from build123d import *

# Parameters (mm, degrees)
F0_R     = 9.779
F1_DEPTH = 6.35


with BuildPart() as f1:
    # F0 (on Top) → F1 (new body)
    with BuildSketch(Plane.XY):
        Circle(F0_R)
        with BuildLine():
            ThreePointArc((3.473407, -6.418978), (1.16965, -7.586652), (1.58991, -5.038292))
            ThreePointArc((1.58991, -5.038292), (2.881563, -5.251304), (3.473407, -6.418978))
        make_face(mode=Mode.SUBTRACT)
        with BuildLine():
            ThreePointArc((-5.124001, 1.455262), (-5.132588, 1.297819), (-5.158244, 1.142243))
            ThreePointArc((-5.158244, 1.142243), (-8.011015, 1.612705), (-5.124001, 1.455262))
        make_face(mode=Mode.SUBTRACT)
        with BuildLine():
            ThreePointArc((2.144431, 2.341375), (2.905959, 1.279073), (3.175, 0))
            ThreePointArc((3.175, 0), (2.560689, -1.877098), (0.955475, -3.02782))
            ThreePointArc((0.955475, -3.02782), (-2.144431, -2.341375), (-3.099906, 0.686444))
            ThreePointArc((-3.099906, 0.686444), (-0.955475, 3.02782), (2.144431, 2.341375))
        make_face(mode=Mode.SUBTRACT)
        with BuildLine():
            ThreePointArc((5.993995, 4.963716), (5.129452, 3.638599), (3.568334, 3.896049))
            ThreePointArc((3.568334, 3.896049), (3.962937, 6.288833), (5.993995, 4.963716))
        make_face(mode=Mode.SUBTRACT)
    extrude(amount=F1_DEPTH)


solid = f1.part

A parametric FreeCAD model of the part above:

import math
import FreeCAD as App
import Part
import Sketcher
Q = App.Units.Quantity

doc = App.newDocument("Part")
params = doc.addObject("Spreadsheet::Sheet", "Params")
for row, (alias, value) in enumerate([
    ("sketch1_diameter", "0.77 in"),
    ("sketch1_radius", "0.057 in"),
    ("sketch1_radius2", "0.125 in"),
    ("pad1_length", "0.25 in"),
], start=1):
    params.set(f"A{row}", alias)
    params.set(f"B{row}", "=" + value)
    params.setAlias(f"B{row}", alias)

body = doc.addObject("PartDesign::Body", "Body")

# Sketch on XY plane
sketch1 = doc.addObject("Sketcher::SketchObject", "Sketch")
body.addObject(sketch1)
sketch1.AttachmentSupport = (doc.XY_Plane, [""])
sketch1.MapMode = "FlatFace"
sketch1.addGeometry([
    Part.Circle(App.Vector(0, 0, 0), App.Vector(0, 0, 1), 9.78),  # 0
    Part.ArcOfCircle(Part.Circle(App.Vector(2.03, -6.42, 0), App.Vector(0, 0, 1), 1.45), math.radians(0), math.radians(108)),  # 1
    Part.ArcOfCircle(Part.Circle(App.Vector(2.03, -6.42, 0), App.Vector(0, 0, 1), 1.45), math.radians(108), math.radians(360)),  # 2
    Part.ArcOfCircle(Part.Circle(App.Vector(-6.57, 1.46, 0), App.Vector(0, 0, 1), 1.45), math.radians(0), math.radians(348)),  # 3
    Part.ArcOfCircle(Part.Circle(App.Vector(-6.57, 1.46, 0), App.Vector(0, 0, 1), 1.45), math.radians(-12.49), math.radians(0)),  # 4
    Part.ArcOfCircle(Part.Circle(App.Vector(0, 0, 0), App.Vector(0, 0, 1), 3.17), math.radians(48), math.radians(168)),  # 5
    Part.ArcOfCircle(Part.Circle(App.Vector(0, 0, 0), App.Vector(0, 0, 1), 3.17), math.radians(0), math.radians(48)),  # 6
    Part.ArcOfCircle(Part.Circle(App.Vector(0, 0, 0), App.Vector(0, 0, 1), 3.18), math.radians(-72), math.radians(0)),  # 7
    Part.ArcOfCircle(Part.Circle(App.Vector(0, 0, 0), App.Vector(0, 0, 1), 3.18), math.radians(168), math.radians(288)),  # 8
    Part.ArcOfCircle(Part.Circle(App.Vector(4.55, 4.96, 0), App.Vector(0, 0, 1), 1.45), math.radians(0), math.radians(228)),  # 9
    Part.ArcOfCircle(Part.Circle(App.Vector(4.55, 4.96, 0), App.Vector(0, 0, 1), 1.45), math.radians(-132), math.radians(0)),  # 10
], False)
sketch1.addConstraint([
    Sketcher.Constraint("Tangent", 1, 1, 2, 2),
    Sketcher.Constraint("Coincident", 2, 1, 1, 2),
    Sketcher.Constraint("Coincident", 3, 1, 4, 2),
    Sketcher.Constraint("Coincident", 4, 1, 3, 2),
    Sketcher.Constraint("Tangent", 5, 1, 6, 2),
    Sketcher.Constraint("Tangent", 6, 1, 7, 2),
    Sketcher.Constraint("Tangent", 7, 1, 8, 2),
    Sketcher.Constraint("Tangent", 8, 1, 5, 2),
    Sketcher.Constraint("Tangent", 9, 1, 10, 2),
    Sketcher.Constraint("Coincident", 10, 1, 9, 2),
    Sketcher.Constraint("Coincident", 0, 3, -1, 1),
    Sketcher.Constraint("Coincident", 5, 3, -1, 1),
    Sketcher.Constraint("Equal", 2, 3),
    Sketcher.Constraint("Equal", 5, 7),
    Sketcher.Constraint("Equal", 3, 9),
    Sketcher.Constraint("PointOnObject", 6, 1, -1),
    Sketcher.Constraint("Horizontal", 2, 3, 1, 1),
    Sketcher.Constraint("Horizontal", 10, 3, 9, 1),
    Sketcher.Constraint("Diameter", 0, Q("0.77 in")),
    Sketcher.Constraint("Radius", 1, Q("0.057 in")),
    Sketcher.Constraint("Radius", 5, Q("0.125 in")),
    Sketcher.Constraint("Radius", 4, 1.447928),
    Sketcher.Constraint("DistanceX", 3, 3, -1, 1, 6.571801),
    Sketcher.Constraint("DistanceX", 6, 3, 1, 3, 2.025602),
    Sketcher.Constraint("DistanceY", 8, 1, 4, 1, 0.455799),
    Sketcher.Constraint("DistanceY", 1, 3, -1, 1, 6.418979),
    Sketcher.Constraint("DistanceX", -1, 1, 2, 1, 1.58991),
    Sketcher.Constraint("DistanceX", -1, 1, 5, 1, 2.144431),
    Sketcher.Constraint("DistanceY", 7, 1, -1, 1, 3.02782),
    Sketcher.Constraint("DistanceY", -1, 1, 10, 1, 3.896049),
    Sketcher.Constraint("DistanceY", 2, 3, 3, 3, 7.874241),
    Sketcher.Constraint("DistanceX", 6, 3, 9, 3, 4.546191),
    Sketcher.Constraint("DistanceY", 5, 3, 3, 1, 1.455261),
    Sketcher.Constraint("DistanceY", 4, 1, 3, 1, 0.313019),
    Sketcher.Constraint("DistanceY", 5, 1, 9, 1, 2.622341),
])
sketch1.setExpression("Constraints[18]", "Params.sketch1_diameter")
sketch1.setExpression("Constraints[19]", "Params.sketch1_radius")
sketch1.setExpression("Constraints[20]", "Params.sketch1_radius2")
pad1 = doc.addObject("PartDesign::Pad", "Pad")
body.addObject(pad1)
pad1.Profile = sketch1
pad1.setExpression("Length", "Params.pad1_length")

doc.recompute()
